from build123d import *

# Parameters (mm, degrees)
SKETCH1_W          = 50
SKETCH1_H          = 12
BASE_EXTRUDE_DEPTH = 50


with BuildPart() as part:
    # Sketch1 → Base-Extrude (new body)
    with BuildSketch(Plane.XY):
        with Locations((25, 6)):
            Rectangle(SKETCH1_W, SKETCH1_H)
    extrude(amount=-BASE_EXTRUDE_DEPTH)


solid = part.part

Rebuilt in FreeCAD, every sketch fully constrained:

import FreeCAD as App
import Part
import Sketcher


def add_polygon(sketch, points):
    """Adds a closed chain of lines whose ends are joined by coincident constraints."""
    first, n = sketch.GeometryCount, len(points)
    for a, b in zip(points, points[1:] + points[:1]):
        sketch.addGeometry(Part.LineSegment(App.Vector(*a, 0), App.Vector(*b, 0)), False)
    for i in range(n):
        sketch.addConstraint(Sketcher.Constraint("Coincident", first + i, 2, first + (i + 1) % n, 1))

doc = App.newDocument("Part")
body = doc.addObject("PartDesign::Body", "Body")

# Sketch on XY plane
sketch1 = doc.addObject("Sketcher::SketchObject", "Sketch")
body.addObject(sketch1)
sketch1.AttachmentSupport = (doc.XY_Plane, [""])
sketch1.MapMode = "FlatFace"
add_polygon(sketch1, [(0, 12), (0, 0), (50, 0), (50, 12)])  # lines 0-3
sketch1.addConstraint([
    Sketcher.Constraint("Vertical", 0),
    Sketcher.Constraint("Horizontal", 1),
    Sketcher.Constraint("Vertical", 2),
    Sketcher.Constraint("Horizontal", 3),
    Sketcher.Constraint("Coincident", 0, 2, -1, 1),
    Sketcher.Constraint("DistanceX", 1, 1, 1, 2, 50.0),
    Sketcher.Constraint("DistanceY", 0, 2, 0, 1, 12.0),
])
pad1 = doc.addObject("PartDesign::Pad", "Pad")
body.addObject(pad1)
pad1.Profile = sketch1
pad1.Length = 50
pad1.Reversed = True

doc.recompute()
